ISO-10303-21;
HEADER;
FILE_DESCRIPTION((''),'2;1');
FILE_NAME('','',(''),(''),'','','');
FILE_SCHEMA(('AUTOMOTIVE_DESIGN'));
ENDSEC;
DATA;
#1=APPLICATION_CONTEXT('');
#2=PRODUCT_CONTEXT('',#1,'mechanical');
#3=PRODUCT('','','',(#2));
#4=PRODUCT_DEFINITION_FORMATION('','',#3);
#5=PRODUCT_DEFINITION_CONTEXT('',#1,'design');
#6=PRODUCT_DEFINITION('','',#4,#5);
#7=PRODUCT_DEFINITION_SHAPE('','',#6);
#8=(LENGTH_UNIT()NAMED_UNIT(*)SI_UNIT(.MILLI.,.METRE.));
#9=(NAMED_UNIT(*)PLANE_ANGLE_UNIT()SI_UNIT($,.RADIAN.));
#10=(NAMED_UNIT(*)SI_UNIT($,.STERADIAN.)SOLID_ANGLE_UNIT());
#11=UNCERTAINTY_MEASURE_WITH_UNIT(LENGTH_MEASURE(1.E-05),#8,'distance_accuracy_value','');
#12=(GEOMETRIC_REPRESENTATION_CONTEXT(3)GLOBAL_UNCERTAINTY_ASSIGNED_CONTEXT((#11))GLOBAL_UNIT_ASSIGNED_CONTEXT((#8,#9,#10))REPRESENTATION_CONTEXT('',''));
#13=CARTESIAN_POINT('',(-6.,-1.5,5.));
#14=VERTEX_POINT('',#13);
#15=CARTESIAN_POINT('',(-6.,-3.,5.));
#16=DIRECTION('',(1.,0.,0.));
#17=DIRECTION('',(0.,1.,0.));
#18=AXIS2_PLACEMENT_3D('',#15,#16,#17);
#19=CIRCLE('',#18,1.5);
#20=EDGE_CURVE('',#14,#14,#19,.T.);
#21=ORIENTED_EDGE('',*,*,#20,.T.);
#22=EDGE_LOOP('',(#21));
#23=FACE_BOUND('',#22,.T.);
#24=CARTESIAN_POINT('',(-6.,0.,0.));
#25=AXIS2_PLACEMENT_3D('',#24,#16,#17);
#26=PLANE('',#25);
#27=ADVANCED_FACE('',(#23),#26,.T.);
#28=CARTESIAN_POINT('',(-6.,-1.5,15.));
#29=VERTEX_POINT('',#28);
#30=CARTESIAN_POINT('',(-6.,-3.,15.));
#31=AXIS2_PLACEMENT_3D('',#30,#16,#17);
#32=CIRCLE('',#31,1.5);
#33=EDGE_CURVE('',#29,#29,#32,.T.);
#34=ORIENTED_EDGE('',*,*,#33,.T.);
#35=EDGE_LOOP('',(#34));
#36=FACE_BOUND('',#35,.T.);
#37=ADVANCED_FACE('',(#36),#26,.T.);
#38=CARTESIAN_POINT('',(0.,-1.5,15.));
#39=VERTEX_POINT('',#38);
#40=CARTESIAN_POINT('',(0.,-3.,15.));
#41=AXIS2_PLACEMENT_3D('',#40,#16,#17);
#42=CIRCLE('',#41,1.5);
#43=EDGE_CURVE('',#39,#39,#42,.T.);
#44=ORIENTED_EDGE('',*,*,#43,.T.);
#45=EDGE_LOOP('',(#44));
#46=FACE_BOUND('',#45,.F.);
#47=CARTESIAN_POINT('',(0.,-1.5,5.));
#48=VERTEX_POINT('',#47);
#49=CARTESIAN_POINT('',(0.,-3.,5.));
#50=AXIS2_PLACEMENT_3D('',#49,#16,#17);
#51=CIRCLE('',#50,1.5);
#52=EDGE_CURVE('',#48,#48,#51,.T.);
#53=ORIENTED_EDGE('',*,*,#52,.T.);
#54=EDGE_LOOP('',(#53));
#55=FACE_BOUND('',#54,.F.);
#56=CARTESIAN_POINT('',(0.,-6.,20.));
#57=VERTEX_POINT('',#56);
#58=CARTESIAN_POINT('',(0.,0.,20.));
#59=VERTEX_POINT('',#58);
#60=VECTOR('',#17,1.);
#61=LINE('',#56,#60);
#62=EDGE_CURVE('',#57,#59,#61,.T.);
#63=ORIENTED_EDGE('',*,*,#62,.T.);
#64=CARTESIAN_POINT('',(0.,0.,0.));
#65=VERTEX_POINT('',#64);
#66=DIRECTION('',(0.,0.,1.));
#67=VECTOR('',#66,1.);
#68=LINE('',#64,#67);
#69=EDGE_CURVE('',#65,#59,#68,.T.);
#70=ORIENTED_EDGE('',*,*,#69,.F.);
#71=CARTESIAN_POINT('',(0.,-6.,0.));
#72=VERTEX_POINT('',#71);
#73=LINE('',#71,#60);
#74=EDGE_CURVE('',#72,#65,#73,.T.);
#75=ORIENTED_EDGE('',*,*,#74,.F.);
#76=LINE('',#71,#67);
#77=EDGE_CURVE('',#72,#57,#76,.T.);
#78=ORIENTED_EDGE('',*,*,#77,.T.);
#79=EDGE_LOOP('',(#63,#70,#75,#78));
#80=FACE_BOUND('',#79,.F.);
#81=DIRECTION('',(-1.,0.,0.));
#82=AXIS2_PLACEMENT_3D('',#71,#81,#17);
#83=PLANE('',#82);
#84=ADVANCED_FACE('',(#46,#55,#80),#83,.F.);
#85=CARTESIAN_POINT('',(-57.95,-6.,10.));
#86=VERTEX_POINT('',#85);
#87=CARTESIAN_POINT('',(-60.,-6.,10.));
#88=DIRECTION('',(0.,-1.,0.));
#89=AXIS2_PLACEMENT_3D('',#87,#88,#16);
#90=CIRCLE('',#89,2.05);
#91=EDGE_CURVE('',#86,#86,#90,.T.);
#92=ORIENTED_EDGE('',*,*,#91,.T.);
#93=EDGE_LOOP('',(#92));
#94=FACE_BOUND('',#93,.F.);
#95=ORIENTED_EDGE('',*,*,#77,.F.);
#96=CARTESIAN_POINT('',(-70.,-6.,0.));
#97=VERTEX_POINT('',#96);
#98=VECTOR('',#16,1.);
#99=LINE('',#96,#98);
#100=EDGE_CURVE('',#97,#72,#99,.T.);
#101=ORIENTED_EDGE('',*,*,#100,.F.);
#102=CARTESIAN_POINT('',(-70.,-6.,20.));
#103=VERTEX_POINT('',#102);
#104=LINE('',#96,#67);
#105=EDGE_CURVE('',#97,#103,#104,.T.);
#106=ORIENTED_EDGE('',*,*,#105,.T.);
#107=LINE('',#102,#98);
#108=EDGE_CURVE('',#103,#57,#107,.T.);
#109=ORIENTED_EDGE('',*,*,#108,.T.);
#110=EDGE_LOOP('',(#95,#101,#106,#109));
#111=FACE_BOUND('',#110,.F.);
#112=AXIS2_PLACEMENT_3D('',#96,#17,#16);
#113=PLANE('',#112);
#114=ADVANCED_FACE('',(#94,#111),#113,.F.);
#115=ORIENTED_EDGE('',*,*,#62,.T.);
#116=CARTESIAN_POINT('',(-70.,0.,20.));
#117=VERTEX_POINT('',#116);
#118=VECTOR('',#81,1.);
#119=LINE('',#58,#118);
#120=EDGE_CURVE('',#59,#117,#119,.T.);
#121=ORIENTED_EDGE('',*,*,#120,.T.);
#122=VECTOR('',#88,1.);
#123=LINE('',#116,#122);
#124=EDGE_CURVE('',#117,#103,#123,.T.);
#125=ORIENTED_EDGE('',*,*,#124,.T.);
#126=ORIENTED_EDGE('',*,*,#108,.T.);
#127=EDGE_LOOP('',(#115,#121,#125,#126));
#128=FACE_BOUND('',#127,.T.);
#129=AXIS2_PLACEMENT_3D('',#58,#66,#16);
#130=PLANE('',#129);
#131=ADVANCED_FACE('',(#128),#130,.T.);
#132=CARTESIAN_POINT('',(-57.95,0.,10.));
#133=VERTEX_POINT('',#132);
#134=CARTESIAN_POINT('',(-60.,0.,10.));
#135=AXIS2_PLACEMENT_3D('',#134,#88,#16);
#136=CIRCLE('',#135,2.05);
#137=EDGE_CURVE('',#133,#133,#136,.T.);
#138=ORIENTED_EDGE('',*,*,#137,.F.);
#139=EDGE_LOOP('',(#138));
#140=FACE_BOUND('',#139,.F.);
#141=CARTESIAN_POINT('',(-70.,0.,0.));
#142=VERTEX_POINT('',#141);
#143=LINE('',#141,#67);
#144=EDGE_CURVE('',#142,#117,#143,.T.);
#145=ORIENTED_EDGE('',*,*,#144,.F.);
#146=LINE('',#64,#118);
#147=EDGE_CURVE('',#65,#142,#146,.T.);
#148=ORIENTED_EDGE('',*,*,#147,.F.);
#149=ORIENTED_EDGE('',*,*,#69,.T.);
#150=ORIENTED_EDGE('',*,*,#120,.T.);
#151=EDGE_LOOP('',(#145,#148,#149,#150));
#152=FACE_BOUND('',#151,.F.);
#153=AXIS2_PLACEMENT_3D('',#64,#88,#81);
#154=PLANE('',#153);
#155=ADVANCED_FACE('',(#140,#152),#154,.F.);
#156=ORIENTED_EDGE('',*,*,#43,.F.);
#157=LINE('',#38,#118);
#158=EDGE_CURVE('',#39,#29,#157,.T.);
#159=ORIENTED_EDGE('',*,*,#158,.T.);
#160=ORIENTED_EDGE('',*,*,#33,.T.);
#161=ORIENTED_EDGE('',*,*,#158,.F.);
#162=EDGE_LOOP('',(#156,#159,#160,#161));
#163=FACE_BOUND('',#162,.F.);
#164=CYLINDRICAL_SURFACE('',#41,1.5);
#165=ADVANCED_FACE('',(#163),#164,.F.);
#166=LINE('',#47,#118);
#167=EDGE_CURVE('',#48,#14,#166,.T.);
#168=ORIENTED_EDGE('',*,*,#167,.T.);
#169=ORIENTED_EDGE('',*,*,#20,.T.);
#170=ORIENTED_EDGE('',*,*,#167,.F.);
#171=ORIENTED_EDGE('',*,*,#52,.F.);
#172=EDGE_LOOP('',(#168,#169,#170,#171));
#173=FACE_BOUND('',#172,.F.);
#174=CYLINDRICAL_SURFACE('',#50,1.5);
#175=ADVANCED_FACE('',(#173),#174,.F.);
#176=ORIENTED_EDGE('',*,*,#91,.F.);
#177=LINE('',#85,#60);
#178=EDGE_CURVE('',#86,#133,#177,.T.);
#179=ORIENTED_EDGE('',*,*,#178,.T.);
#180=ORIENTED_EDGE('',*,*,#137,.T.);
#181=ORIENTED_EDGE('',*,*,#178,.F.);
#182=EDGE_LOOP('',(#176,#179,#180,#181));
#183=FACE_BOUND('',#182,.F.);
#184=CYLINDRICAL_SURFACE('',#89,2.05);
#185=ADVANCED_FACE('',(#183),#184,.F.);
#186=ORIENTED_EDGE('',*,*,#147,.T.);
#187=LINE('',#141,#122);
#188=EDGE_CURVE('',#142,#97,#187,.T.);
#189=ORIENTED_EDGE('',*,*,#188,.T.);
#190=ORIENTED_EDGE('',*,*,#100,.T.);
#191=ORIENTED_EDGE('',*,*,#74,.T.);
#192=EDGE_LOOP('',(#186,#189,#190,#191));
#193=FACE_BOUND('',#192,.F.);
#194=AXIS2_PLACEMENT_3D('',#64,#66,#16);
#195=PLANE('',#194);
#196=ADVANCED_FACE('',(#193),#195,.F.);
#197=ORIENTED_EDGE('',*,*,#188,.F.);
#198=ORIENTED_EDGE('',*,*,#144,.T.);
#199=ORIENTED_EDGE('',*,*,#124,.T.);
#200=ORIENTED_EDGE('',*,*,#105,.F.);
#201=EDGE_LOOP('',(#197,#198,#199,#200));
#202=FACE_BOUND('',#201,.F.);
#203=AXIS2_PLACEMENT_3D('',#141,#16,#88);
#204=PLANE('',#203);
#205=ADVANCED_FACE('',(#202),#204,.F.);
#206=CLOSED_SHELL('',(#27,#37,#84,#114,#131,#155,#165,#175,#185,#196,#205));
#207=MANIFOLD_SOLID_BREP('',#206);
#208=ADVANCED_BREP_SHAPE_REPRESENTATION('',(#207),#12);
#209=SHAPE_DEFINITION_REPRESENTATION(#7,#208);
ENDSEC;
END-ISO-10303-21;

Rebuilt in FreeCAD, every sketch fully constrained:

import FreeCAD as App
import Part
import Sketcher
from FreeCAD import Vector
Q = App.Units.Quantity

doc = App.newDocument("Part")
body = doc.addObject("PartDesign::Body", "Body")

# Sketch on XY plane
sketch1 = body.newObject("Sketcher::SketchObject", "Sketch")
sketch1.AttachmentSupport = (doc.getObject("XY_Plane"), [""])
sketch1.MapMode = "FlatFace"
sketch1.addGeometry(Part.LineSegment(Vector(0, -6, 0), Vector(0, 0, 0)), False)
sketch1.addGeometry(Part.LineSegment(Vector(0, 0, 0), Vector(-70, 0, 0)), False)
sketch1.addGeometry(Part.LineSegment(Vector(-70, 0, 0), Vector(-70, -6, 0)), False)
sketch1.addGeometry(Part.LineSegment(Vector(-70, -6, 0), Vector(0, -6, 0)), False)
sketch1.addConstraint(Sketcher.Constraint("Coincident", 0, 2, 1, 1))
sketch1.addConstraint(Sketcher.Constraint("Coincident", 1, 2, 2, 1))
sketch1.addConstraint(Sketcher.Constraint("Coincident", 2, 2, 3, 1))
sketch1.addConstraint(Sketcher.Constraint("Coincident", 3, 2, 0, 1))
sketch1.addConstraint(Sketcher.Constraint("Vertical", 0))
sketch1.addConstraint(Sketcher.Constraint("Horizontal", 1))
sketch1.addConstraint(Sketcher.Constraint("Vertical", 2))
sketch1.addConstraint(Sketcher.Constraint("Horizontal", 3))
sketch1.addConstraint(Sketcher.Constraint("Coincident", 0, 2, -1, 1))
sketch1.addConstraint(Sketcher.Constraint("DistanceX", 1, 2, 1, 1, Q("70 mm")))
sketch1.addConstraint(Sketcher.Constraint("DistanceY", 0, 1, 0, 2, Q("6 mm")))
pad1 = body.newObject("PartDesign::Pad", "Pad")
pad1.Profile = sketch1
pad1.Length = 20

# Sketch on XZ plane
sketch2 = body.newObject("Sketcher::SketchObject", "Sketch001")
sketch2.AttachmentSupport = (doc.getObject("XZ_Plane"), [""])
sketch2.MapMode = "FlatFace"
sketch2.AttachmentOffset = App.Placement(Vector(0, 0, 6), App.Rotation())
sketch2.addGeometry(Part.Circle(Vector(-60, 10, 0), Vector(0, 0, 1), 2), False)
sketch2.addConstraint(Sketcher.Constraint("Diameter", 0, Q("4.1 mm")))
sketch2.addConstraint(Sketcher.Constraint("DistanceX", 0, 3, -1, 1, Q("60 mm")))
sketch2.addConstraint(Sketcher.Constraint("DistanceY", -1, 1, 0, 3, Q("10 mm")))
pocket1 = body.newObject("PartDesign::Pocket", "Pocket")
pocket1.Profile = sketch2
pocket1.Length = 6

# Sketch on YZ plane
sketch3 = body.newObject("Sketcher::SketchObject", "Sketch002")
sketch3.AttachmentSupport = (doc.getObject("YZ_Plane"), [""])
sketch3.MapMode = "FlatFace"
sketch3.addGeometry(Part.Circle(Vector(-3, 5, 0), Vector(0, 0, 1), 1.5), False)
sketch3.addGeometry(Part.Circle(Vector(-3, 15, 0), Vector(0, 0, 1), 1.5), False)
sketch3.addConstraint(Sketcher.Constraint("Equal", 0, 1))
sketch3.addConstraint(Sketcher.Constraint("Vertical", 0, 3, 1, 3))
sketch3.addConstraint(Sketcher.Constraint("Diameter", 0, Q("3 mm")))
sketch3.addConstraint(Sketcher.Constraint("DistanceX", 0, 3, -1, 1, Q("3 mm")))
sketch3.addConstraint(Sketcher.Constraint("DistanceY", -1, 1, 0, 3, Q("5 mm")))
sketch3.addConstraint(Sketcher.Constraint("DistanceY", -1, 1, 1, 3, Q("15 mm")))
pocket2 = body.newObject("PartDesign::Pocket", "Pocket001")
pocket2.Profile = sketch3
pocket2.Length = 6

doc.recompute()
